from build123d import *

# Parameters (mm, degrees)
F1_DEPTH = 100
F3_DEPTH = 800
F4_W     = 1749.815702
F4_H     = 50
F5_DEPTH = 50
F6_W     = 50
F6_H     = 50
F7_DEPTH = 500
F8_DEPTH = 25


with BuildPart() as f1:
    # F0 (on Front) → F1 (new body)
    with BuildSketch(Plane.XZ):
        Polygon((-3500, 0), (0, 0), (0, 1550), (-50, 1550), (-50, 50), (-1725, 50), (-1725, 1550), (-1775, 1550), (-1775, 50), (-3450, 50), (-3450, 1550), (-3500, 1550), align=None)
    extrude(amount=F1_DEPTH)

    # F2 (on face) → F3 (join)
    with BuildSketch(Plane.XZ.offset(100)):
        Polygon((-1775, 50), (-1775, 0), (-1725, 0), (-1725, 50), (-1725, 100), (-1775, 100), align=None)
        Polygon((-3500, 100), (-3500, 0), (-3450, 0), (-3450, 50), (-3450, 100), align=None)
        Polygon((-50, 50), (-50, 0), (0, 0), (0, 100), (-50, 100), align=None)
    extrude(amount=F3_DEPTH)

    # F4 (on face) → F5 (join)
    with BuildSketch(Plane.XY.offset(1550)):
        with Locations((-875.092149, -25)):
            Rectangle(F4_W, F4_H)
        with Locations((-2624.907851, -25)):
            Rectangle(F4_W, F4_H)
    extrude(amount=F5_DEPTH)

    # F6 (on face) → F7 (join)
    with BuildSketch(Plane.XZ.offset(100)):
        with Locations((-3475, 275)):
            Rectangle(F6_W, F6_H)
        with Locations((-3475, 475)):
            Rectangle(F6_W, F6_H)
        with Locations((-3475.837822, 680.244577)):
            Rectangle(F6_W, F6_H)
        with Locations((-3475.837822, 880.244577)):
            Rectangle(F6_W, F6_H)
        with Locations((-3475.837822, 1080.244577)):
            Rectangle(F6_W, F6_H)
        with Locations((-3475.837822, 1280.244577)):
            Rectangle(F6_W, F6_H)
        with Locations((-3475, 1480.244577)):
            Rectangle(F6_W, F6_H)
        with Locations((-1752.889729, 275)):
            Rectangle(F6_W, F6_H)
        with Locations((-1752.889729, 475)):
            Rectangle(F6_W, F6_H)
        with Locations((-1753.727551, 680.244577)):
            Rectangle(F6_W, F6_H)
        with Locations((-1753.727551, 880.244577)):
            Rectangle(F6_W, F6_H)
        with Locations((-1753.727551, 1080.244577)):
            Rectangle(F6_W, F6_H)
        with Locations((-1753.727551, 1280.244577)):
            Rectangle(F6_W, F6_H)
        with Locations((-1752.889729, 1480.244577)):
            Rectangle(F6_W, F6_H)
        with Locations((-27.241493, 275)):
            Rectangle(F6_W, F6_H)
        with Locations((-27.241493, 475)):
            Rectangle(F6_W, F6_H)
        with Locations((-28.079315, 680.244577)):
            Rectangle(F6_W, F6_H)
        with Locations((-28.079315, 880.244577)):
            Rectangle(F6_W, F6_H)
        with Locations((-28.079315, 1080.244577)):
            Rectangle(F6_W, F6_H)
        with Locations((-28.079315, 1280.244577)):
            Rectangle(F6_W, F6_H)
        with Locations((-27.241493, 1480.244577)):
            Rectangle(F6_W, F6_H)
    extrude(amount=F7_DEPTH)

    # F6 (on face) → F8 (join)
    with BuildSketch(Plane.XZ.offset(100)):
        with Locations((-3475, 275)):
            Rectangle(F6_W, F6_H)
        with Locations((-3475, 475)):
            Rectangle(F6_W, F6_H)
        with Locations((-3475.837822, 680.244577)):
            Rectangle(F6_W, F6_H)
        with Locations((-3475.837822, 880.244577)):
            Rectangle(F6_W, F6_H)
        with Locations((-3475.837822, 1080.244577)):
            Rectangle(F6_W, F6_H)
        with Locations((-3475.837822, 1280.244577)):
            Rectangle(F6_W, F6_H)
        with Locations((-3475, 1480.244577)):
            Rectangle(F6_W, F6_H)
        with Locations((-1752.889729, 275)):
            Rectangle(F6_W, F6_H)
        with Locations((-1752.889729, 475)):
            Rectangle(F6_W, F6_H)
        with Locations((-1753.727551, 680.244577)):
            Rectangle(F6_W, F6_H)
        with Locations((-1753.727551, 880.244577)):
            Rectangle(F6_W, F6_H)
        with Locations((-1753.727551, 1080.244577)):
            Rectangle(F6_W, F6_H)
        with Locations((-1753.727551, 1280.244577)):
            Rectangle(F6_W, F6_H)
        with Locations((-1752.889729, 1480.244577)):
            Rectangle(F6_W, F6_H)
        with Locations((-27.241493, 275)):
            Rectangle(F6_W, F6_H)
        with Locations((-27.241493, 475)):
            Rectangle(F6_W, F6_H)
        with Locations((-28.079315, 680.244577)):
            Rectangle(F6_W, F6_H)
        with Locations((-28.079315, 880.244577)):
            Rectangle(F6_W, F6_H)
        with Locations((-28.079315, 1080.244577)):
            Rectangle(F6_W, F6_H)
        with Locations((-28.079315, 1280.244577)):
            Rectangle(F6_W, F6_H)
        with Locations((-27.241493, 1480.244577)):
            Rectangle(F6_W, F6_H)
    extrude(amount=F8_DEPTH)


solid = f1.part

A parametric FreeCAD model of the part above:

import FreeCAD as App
import Part
import Sketcher


def add_polygon(sketch, points):
    """Adds a closed chain of lines whose ends are joined by coincident constraints."""
    first, n = sketch.GeometryCount, len(points)
    for a, b in zip(points, points[1:] + points[:1]):
        sketch.addGeometry(Part.LineSegment(App.Vector(*a, 0), App.Vector(*b, 0)), False)
    for i in range(n):
        sketch.addConstraint(Sketcher.Constraint("Coincident", first + i, 2, first + (i + 1) % n, 1))

doc = App.newDocument("Part")
body = doc.addObject("PartDesign::Body", "Body")

# Sketch on XZ plane
sketch1 = doc.addObject("Sketcher::SketchObject", "Sketch")
body.addObject(sketch1)
sketch1.AttachmentSupport = (doc.XZ_Plane, [""])
sketch1.MapMode = "FlatFace"
add_polygon(sketch1, [(-3500, 0), (0, 0), (0, 1550), (-50, 1550), (-50, 50), (-1725, 50), (-1725, 1550), (-1775, 1550), (-1775, 50), (-3450, 50), (-3450, 1550), (-3500, 1550)])  # lines 0-11
sketch1.addConstraint([
    Sketcher.Constraint("Horizontal", 0),
    Sketcher.Constraint("Vertical", 1),
    Sketcher.Constraint("Horizontal", 2),
    Sketcher.Constraint("Vertical", 3),
    Sketcher.Constraint("Horizontal", 4),
    Sketcher.Constraint("Vertical", 5),
    Sketcher.Constraint("Horizontal", 6),
    Sketcher.Constraint("Vertical", 7),
    Sketcher.Constraint("Horizontal", 8),
    Sketcher.Constraint("Vertical", 9),
    Sketcher.Constraint("Horizontal", 10),
    Sketcher.Constraint("Vertical", 11),
    Sketcher.Constraint("Coincident", 0, 2, -1, 1),
    Sketcher.Constraint("Horizontal", 2, 2, 5, 2),
    Sketcher.Constraint("Horizontal", 4, 2, 7, 2),
    Sketcher.Constraint("Horizontal", 6, 2, 9, 2),
    Sketcher.Constraint("Equal", 2, 6),
    Sketcher.Constraint("Equal", 4, 8),
    Sketcher.Constraint("Equal", 6, 10),
    Sketcher.Constraint("DistanceX", 0, 1, 0, 2, 3500.0),
    Sketcher.Constraint("DistanceX", 2, 2, 2, 1, 50.0),
    Sketcher.Constraint("DistanceY", 1, 1, 1, 2, 1550.0),
    Sketcher.Constraint("DistanceY", 3, 2, 3, 1, 1500.0),
])
pad1 = doc.addObject("PartDesign::Pad", "Pad")
body.addObject(pad1)
pad1.Profile = sketch1
pad1.Length = 100

# Sketch on XZ plane
sketch2 = doc.addObject("Sketcher::SketchObject", "Sketch001")
body.addObject(sketch2)
sketch2.AttachmentSupport = (doc.XZ_Plane, [""])
sketch2.MapMode = "FlatFace"
sketch2.AttachmentOffset = App.Placement(App.Vector(0, 0, 100), App.Rotation())
add_polygon(sketch2, [(-1775, 0), (-1725, 0), (-1725, 100), (-1775, 100)])  # lines 0-3
add_polygon(sketch2, [(-3500, 100), (-3500, 0), (-3450, 0), (-3450, 100)])  # lines 4-7
add_polygon(sketch2, [(-50, 0), (0, 0), (0, 100), (-50, 100)])  # lines 8-11
sketch2.addConstraint([
    Sketcher.Constraint("Horizontal", 0),
    Sketcher.Constraint("Vertical", 1),
    Sketcher.Constraint("Horizontal", 2),
    Sketcher.Constraint("Vertical", 3),
    Sketcher.Constraint("Vertical", 4),
    Sketcher.Constraint("Horizontal", 5),
    Sketcher.Constraint("Vertical", 6),
    Sketcher.Constraint("Horizontal", 7),
    Sketcher.Constraint("Horizontal", 8),
    Sketcher.Constraint("Vertical", 9),
    Sketcher.Constraint("Horizontal", 10),
    Sketcher.Constraint("Vertical", 11),
    Sketcher.Constraint("Coincident", 8, 2, -1, 1),
    Sketcher.Constraint("PointOnObject", 0, 2, -1),
    Sketcher.Constraint("PointOnObject", 4, 2, -1),
    Sketcher.Constraint("Horizontal", 2, 2, 6, 2),
    Sketcher.Constraint("Horizontal", 7, 2, 9, 2),
    Sketcher.Constraint("Equal", 2, 5),
    Sketcher.Constraint("Equal", 7, 8),
    Sketcher.Constraint("DistanceX", 0, 1, 0, 2, 50.0),
    Sketcher.Constraint("DistanceY", 1, 1, 1, 2, 100.0),
    Sketcher.Constraint("DistanceX", 0, 2, -1, 1, 1725.0),
    Sketcher.Constraint("DistanceX", 4, 2, -1, 1, 3500.0),
])
pad2 = doc.addObject("PartDesign::Pad", "Pad001")
body.addObject(pad2)
pad2.Profile = sketch2
pad2.Length = 800

# Sketch on XY plane
sketch3 = doc.addObject("Sketcher::SketchObject", "Sketch002")
body.addObject(sketch3)
sketch3.AttachmentSupport = (doc.XY_Plane, [""])
sketch3.MapMode = "FlatFace"
sketch3.AttachmentOffset = App.Placement(App.Vector(0, 0, 1550), App.Rotation())
add_polygon(sketch3, [(0, -50), (0, 0), (-3500, 0), (-3500, -50)])  # lines 0-3
sketch3.addConstraint([
    Sketcher.Constraint("Vertical", 0),
    Sketcher.Constraint("Horizontal", 1),
    Sketcher.Constraint("Vertical", 2),
    Sketcher.Constraint("Horizontal", 3),
    Sketcher.Constraint("PointOnObject", 0, 2, -1),
    Sketcher.Constraint("DistanceY", 0, 1, 0, 2, 50.0),
    Sketcher.Constraint("DistanceX", 1, 2, -1, 1, 3499.815702),
    Sketcher.Constraint("DistanceX", 1, 2, 1, 1, 3499.631404),
])
pad3 = doc.addObject("PartDesign::Pad", "Pad002")
body.addObject(pad3)
pad3.Profile = sketch3
pad3.Length = 50

# Sketch on XZ plane
sketch4 = doc.addObject("Sketcher::SketchObject", "Sketch003")
body.addObject(sketch4)
sketch4.AttachmentSupport = (doc.XZ_Plane, [""])
sketch4.MapMode = "FlatFace"
sketch4.AttachmentOffset = App.Placement(App.Vector(0, 0, 100), App.Rotation())
add_polygon(sketch4, [(-3500, 300), (-3500, 250), (-3450, 250), (-3450, 300)])  # lines 0-3
add_polygon(sketch4, [(-3500, 500), (-3500, 450), (-3450, 450), (-3450, 500)])  # lines 4-7
add_polygon(sketch4, [(-3501, 705), (-3501, 655), (-3451, 655), (-3451, 705)])  # lines 8-11
add_polygon(sketch4, [(-3501, 905), (-3501, 855), (-3451, 855), (-3451, 905)])  # lines 12-15
add_polygon(sketch4, [(-3501, 1105), (-3501, 1055), (-3451, 1055), (-3451, 1105)])  # lines 16-19
add_polygon(sketch4, [(-3501, 1305), (-3501, 1255), (-3451, 1255), (-3451, 1305)])  # lines 20-23
add_polygon(sketch4, [(-3500, 1505), (-3500, 1455), (-3450, 1455), (-3450, 1505)])  # lines 24-27
add_polygon(sketch4, [(-1778, 300), (-1778, 250), (-1728, 250), (-1728, 300)])  # lines 28-31
add_polygon(sketch4, [(-1778, 500), (-1778, 450), (-1728, 450), (-1728, 500)])  # lines 32-35
add_polygon(sketch4, [(-1779, 705), (-1779, 655), (-1729, 655), (-1729, 705)])  # lines 36-39
add_polygon(sketch4, [(-1779, 905), (-1779, 855), (-1729, 855), (-1729, 905)])  # lines 40-43
add_polygon(sketch4, [(-1779, 1105), (-1779, 1055), (-1729, 1055), (-1729, 1105)])  # lines 44-47
add_polygon(sketch4, [(-1779, 1305), (-1779, 1255), (-1729, 1255), (-1729, 1305)])  # lines 48-51
add_polygon(sketch4, [(-1778, 1505), (-1778, 1455), (-1728, 1455), (-1728, 1505)])  # lines 52-55
add_polygon(sketch4, [(-52, 300), (-52, 250), (-2, 250), (-2, 300)])  # lines 56-59
add_polygon(sketch4, [(-52, 500), (-52, 450), (-2, 450), (-2, 500)])  # lines 60-63
add_polygon(sketch4, [(-53, 705), (-53, 655), (-3, 655), (-3, 705)])  # lines 64-67
add_polygon(sketch4, [(-53, 905), (-53, 855), (-3, 855), (-3, 905)])  # lines 68-71
add_polygon(sketch4, [(-53, 1105), (-53, 1055), (-3, 1055), (-3, 1105)])  # lines 72-75
add_polygon(sketch4, [(-53, 1305), (-53, 1255), (-3, 1255), (-3, 1305)])  # lines 76-79
add_polygon(sketch4, [(-52, 1505), (-52, 1455), (-2, 1455), (-2, 1505)])  # lines 80-83
sketch4.addConstraint([
    Sketcher.Constraint("Vertical", 0),
    Sketcher.Constraint("Horizontal", 1),
    Sketcher.Constraint("Vertical", 2),
    Sketcher.Constraint("Horizontal", 3),
    Sketcher.Constraint("Vertical", 4),
    Sketcher.Constraint("Horizontal", 5),
    Sketcher.Constraint("Vertical", 6),
    Sketcher.Constraint("Horizontal", 7),
    Sketcher.Constraint("Vertical", 8),
    Sketcher.Constraint("Horizontal", 9),
    Sketcher.Constraint("Vertical", 10),
    Sketcher.Constraint("Horizontal", 11),
    Sketcher.Constraint("Vertical", 12),
    Sketcher.Constraint("Horizontal", 13),
    Sketcher.Constraint("Vertical", 14),
    Sketcher.Constraint("Horizontal", 15),
    Sketcher.Constraint("Vertical", 16),
    Sketcher.Constraint("Horizontal", 17),
    Sketcher.Constraint("Vertical", 18),
    Sketcher.Constraint("Horizontal", 19),
    Sketcher.Constraint("Vertical", 20),
    Sketcher.Constraint("Horizontal", 21),
    Sketcher.Constraint("Vertical", 22),
    Sketcher.Constraint("Horizontal", 23),
    Sketcher.Constraint("Vertical", 24),
    Sketcher.Constraint("Horizontal", 25),
    Sketcher.Constraint("Vertical", 26),
    Sketcher.Constraint("Horizontal", 27),
    Sketcher.Constraint("Vertical", 28),
    Sketcher.Constraint("Horizontal", 29),
    Sketcher.Constraint("Vertical", 30),
    Sketcher.Constraint("Horizontal", 31),
    Sketcher.Constraint("Vertical", 32),
    Sketcher.Constraint("Horizontal", 33),
    Sketcher.Constraint("Vertical", 34),
    Sketcher.Constraint("Horizontal", 35),
    Sketcher.Constraint("Vertical", 36),
    Sketcher.Constraint("Horizontal", 37),
    Sketcher.Constraint("Vertical", 38),
    Sketcher.Constraint("Horizontal", 39),
    Sketcher.Constraint("Vertical", 40),
    Sketcher.Constraint("Horizontal", 41),
    Sketcher.Constraint("Vertical", 42),
    Sketcher.Constraint("Horizontal", 43),
    Sketcher.Constraint("Vertical", 44),
    Sketcher.Constraint("Horizontal", 45),
    Sketcher.Constraint("Vertical", 46),
    Sketcher.Constraint("Horizontal", 47),
    Sketcher.Constraint("Vertical", 48),
    Sketcher.Constraint("Horizontal", 49),
    Sketcher.Constraint("Vertical", 50),
    Sketcher.Constraint("Horizontal", 51),
    Sketcher.Constraint("Vertical", 52),
    Sketcher.Constraint("Horizontal", 53),
    Sketcher.Constraint("Vertical", 54),
    Sketcher.Constraint("Horizontal", 55),
    Sketcher.Constraint("Vertical", 56),
    Sketcher.Constraint("Horizontal", 57),
    Sketcher.Constraint("Vertical", 58),
    Sketcher.Constraint("Horizontal", 59),
    Sketcher.Constraint("Vertical", 60),
    Sketcher.Constraint("Horizontal", 61),
    Sketcher.Constraint("Vertical", 62),
    Sketcher.Constraint("Horizontal", 63),
    Sketcher.Constraint("Vertical", 64),
    Sketcher.Constraint("Horizontal", 65),
    Sketcher.Constraint("Vertical", 66),
    Sketcher.Constraint("Horizontal", 67),
    Sketcher.Constraint("Vertical", 68),
    Sketcher.Constraint("Horizontal", 69),
    Sketcher.Constraint("Vertical", 70),
    Sketcher.Constraint("Horizontal", 71),
    Sketcher.Constraint("Vertical", 72),
    Sketcher.Constraint("Horizontal", 73),
    Sketcher.Constraint("Vertical", 74),
    Sketcher.Constraint("Horizontal", 75),
    Sketcher.Constraint("Vertical", 76),
    Sketcher.Constraint("Horizontal", 77),
    Sketcher.Constraint("Vertical", 78),
    Sketcher.Constraint("Horizontal", 79),
    Sketcher.Constraint("Vertical", 80),
    Sketcher.Constraint("Horizontal", 81),
    Sketcher.Constraint("Vertical", 82),
    Sketcher.Constraint("Horizontal", 83),
    Sketcher.Constraint("Horizontal", 1, 2, 28, 2),
    Sketcher.Constraint("Horizontal", 3, 2, 30, 2),
    Sketcher.Constraint("Horizontal", 5, 2, 32, 2),
    Sketcher.Constraint("Horizontal", 7, 2, 34, 2),
    Sketcher.Constraint("Horizontal", 9, 2, 36, 2),
    Sketcher.Constraint("Horizontal", 11, 2, 38, 2),
    Sketcher.Constraint("Horizontal", 13, 2, 40, 2),
    Sketcher.Constraint("Horizontal", 15, 2, 42, 2),
    Sketcher.Constraint("Horizontal", 17, 2, 44, 2),
    Sketcher.Constraint("Horizontal", 19, 2, 46, 2),
    Sketcher.Constraint("Horizontal", 21, 2, 48, 2),
    Sketcher.Constraint("Horizontal", 23, 2, 50, 2),
    Sketcher.Constraint("Horizontal", 25, 2, 52, 2),
    Sketcher.Constraint("Horizontal", 27, 2, 54, 2),
    Sketcher.Constraint("Horizontal", 29, 2, 56, 2),
    Sketcher.Constraint("Horizontal", 31, 2, 58, 2),
    Sketcher.Constraint("Horizontal", 33, 2, 60, 2),
    Sketcher.Constraint("Horizontal", 35, 2, 62, 2),
    Sketcher.Constraint("Horizontal", 37, 2, 64, 2),
    Sketcher.Constraint("Horizontal", 39, 2, 66, 2),
    Sketcher.Constraint("Horizontal", 41, 2, 68, 2),
    Sketcher.Constraint("Horizontal", 43, 2, 70, 2),
    Sketcher.Constraint("Horizontal", 45, 2, 72, 2),
    Sketcher.Constraint("Horizontal", 47, 2, 74, 2),
    Sketcher.Constraint("Horizontal", 49, 2, 76, 2),
    Sketcher.Constraint("Horizontal", 51, 2, 78, 2),
    Sketcher.Constraint("Horizontal", 53, 2, 80, 2),
    Sketcher.Constraint("Horizontal", 55, 2, 82, 2),
    Sketcher.Constraint("Vertical", 3, 2, 4, 2),
    Sketcher.Constraint("Vertical", 2, 2, 5, 2),
    Sketcher.Constraint("Vertical", 11, 2, 12, 2),
    Sketcher.Constraint("Vertical", 10, 2, 13, 2),
    Sketcher.Constraint("Vertical", 15, 2, 16, 2),
    Sketcher.Constraint("Vertical", 14, 2, 17, 2),
    Sketcher.Constraint("Vertical", 19, 2, 20, 2),
    Sketcher.Constraint("Vertical", 18, 2, 21, 2),
    Sketcher.Constraint("Vertical", 7, 2, 24, 2),
    Sketcher.Constraint("Vertical", 6, 2, 25, 2),
    Sketcher.Constraint("Vertical", 31, 2, 32, 2),
    Sketcher.Constraint("Vertical", 30, 2, 33, 2),
    Sketcher.Constraint("Vertical", 39, 2, 40, 2),
    Sketcher.Constraint("Vertical", 38, 2, 41, 2),
    Sketcher.Constraint("Vertical", 43, 2, 44, 2),
    Sketcher.Constraint("Vertical", 42, 2, 45, 2),
    Sketcher.Constraint("Vertical", 47, 2, 48, 2),
    Sketcher.Constraint("Vertical", 46, 2, 49, 2),
    Sketcher.Constraint("Vertical", 35, 2, 52, 2),
    Sketcher.Constraint("Vertical", 34, 2, 53, 2),
    Sketcher.Constraint("Vertical", 59, 2, 60, 2),
    Sketcher.Constraint("Vertical", 58, 2, 61, 2),
    Sketcher.Constraint("Vertical", 67, 2, 68, 2),
    Sketcher.Constraint("Vertical", 66, 2, 69, 2),
    Sketcher.Constraint("Vertical", 71, 2, 72, 2),
    Sketcher.Constraint("Vertical", 70, 2, 73, 2),
    Sketcher.Constraint("Vertical", 75, 2, 76, 2),
    Sketcher.Constraint("Vertical", 74, 2, 77, 2),
    Sketcher.Constraint("Vertical", 63, 2, 80, 2),
    Sketcher.Constraint("Vertical", 62, 2, 81, 2),
    Sketcher.Constraint("Equal", 7, 9),
    Sketcher.Constraint("Equal", 27, 29),
    Sketcher.Constraint("Equal", 35, 37),
    Sketcher.Constraint("Equal", 55, 57),
    Sketcher.Constraint("Equal", 63, 65),
    Sketcher.Constraint("Equal", 83, 0),
    Sketcher.Constraint("Equal", 2, 4),
    Sketcher.Constraint("Equal", 6, 8),
    Sketcher.Constraint("Equal", 10, 12),
    Sketcher.Constraint("Equal", 14, 16),
    Sketcher.Constraint("Equal", 18, 20),
    Sketcher.Constraint("Equal", 22, 24),
    Sketcher.Constraint("DistanceX", 1, 1, 1, 2, 50.0),
    Sketcher.Constraint("DistanceX", 0, 2, -1, 1, 3500.0),
    Sketcher.Constraint("DistanceY", -1, 1, 0, 2, 250.0),
    Sketcher.Constraint("DistanceY", -1, 1, 4, 2, 450.0),
    Sketcher.Constraint("DistanceX", 8, 2, -1, 1, 3500.837822),
    Sketcher.Constraint("DistanceX", 28, 2, -1, 1, 1777.889729),
    Sketcher.Constraint("DistanceX", 36, 2, -1, 1, 1778.727551),
    Sketcher.Constraint("DistanceY", -1, 1, 8, 2, 655.244577),
    Sketcher.Constraint("DistanceY", -1, 1, 12, 2, 855.244577),
    Sketcher.Constraint("DistanceY", -1, 1, 16, 2, 1055.244577),
    Sketcher.Constraint("DistanceY", -1, 1, 20, 2, 1255.244577),
    Sketcher.Constraint("DistanceY", -1, 1, 24, 2, 1455.244577),
    Sketcher.Constraint("DistanceX", 56, 2, -1, 1, 52.241493),
    Sketcher.Constraint("DistanceX", 64, 2, -1, 1, 53.079315),
])
pad4 = doc.addObject("PartDesign::Pad", "Pad003")
body.addObject(pad4)
pad4.Profile = sketch4
pad4.Length = 500

# Sketch on XZ plane
sketch5 = doc.addObject("Sketcher::SketchObject", "Sketch004")
body.addObject(sketch5)
sketch5.AttachmentSupport = (doc.XZ_Plane, [""])
sketch5.MapMode = "FlatFace"
sketch5.AttachmentOffset = App.Placement(App.Vector(0, 0, 100), App.Rotation())
add_polygon(sketch5, [(-3500, 300), (-3500, 250), (-3450, 250), (-3450, 300)])  # lines 0-3
add_polygon(sketch5, [(-3500, 500), (-3500, 450), (-3450, 450), (-3450, 500)])  # lines 4-7
add_polygon(sketch5, [(-3501, 705), (-3501, 655), (-3451, 655), (-3451, 705)])  # lines 8-11
add_polygon(sketch5, [(-3501, 905), (-3501, 855), (-3451, 855), (-3451, 905)])  # lines 12-15
add_polygon(sketch5, [(-3501, 1105), (-3501, 1055), (-3451, 1055), (-3451, 1105)])  # lines 16-19
add_polygon(sketch5, [(-3501, 1305), (-3501, 1255), (-3451, 1255), (-3451, 1305)])  # lines 20-23
add_polygon(sketch5, [(-3500, 1505), (-3500, 1455), (-3450, 1455), (-3450, 1505)])  # lines 24-27
add_polygon(sketch5, [(-1778, 300), (-1778, 250), (-1728, 250), (-1728, 300)])  # lines 28-31
add_polygon(sketch5, [(-1778, 500), (-1778, 450), (-1728, 450), (-1728, 500)])  # lines 32-35
add_polygon(sketch5, [(-1779, 705), (-1779, 655), (-1729, 655), (-1729, 705)])  # lines 36-39
add_polygon(sketch5, [(-1779, 905), (-1779, 855), (-1729, 855), (-1729, 905)])  # lines 40-43
add_polygon(sketch5, [(-1779, 1105), (-1779, 1055), (-1729, 1055), (-1729, 1105)])  # lines 44-47
add_polygon(sketch5, [(-1779, 1305), (-1779, 1255), (-1729, 1255), (-1729, 1305)])  # lines 48-51
add_polygon(sketch5, [(-1778, 1505), (-1778, 1455), (-1728, 1455), (-1728, 1505)])  # lines 52-55
add_polygon(sketch5, [(-52, 300), (-52, 250), (-2, 250), (-2, 300)])  # lines 56-59
add_polygon(sketch5, [(-52, 500), (-52, 450), (-2, 450), (-2, 500)])  # lines 60-63
add_polygon(sketch5, [(-53, 705), (-53, 655), (-3, 655), (-3, 705)])  # lines 64-67
add_polygon(sketch5, [(-53, 905), (-53, 855), (-3, 855), (-3, 905)])  # lines 68-71
add_polygon(sketch5, [(-53, 1105), (-53, 1055), (-3, 1055), (-3, 1105)])  # lines 72-75
add_polygon(sketch5, [(-53, 1305), (-53, 1255), (-3, 1255), (-3, 1305)])  # lines 76-79
add_polygon(sketch5, [(-52, 1505), (-52, 1455), (-2, 1455), (-2, 1505)])  # lines 80-83
sketch5.addConstraint([
    Sketcher.Constraint("Vertical", 0),
    Sketcher.Constraint("Horizontal", 1),
    Sketcher.Constraint("Vertical", 2),
    Sketcher.Constraint("Horizontal", 3),
    Sketcher.Constraint("Vertical", 4),
    Sketcher.Constraint("Horizontal", 5),
    Sketcher.Constraint("Vertical", 6),
    Sketcher.Constraint("Horizontal", 7),
    Sketcher.Constraint("Vertical", 8),
    Sketcher.Constraint("Horizontal", 9),
    Sketcher.Constraint("Vertical", 10),
    Sketcher.Constraint("Horizontal", 11),
    Sketcher.Constraint("Vertical", 12),
    Sketcher.Constraint("Horizontal", 13),
    Sketcher.Constraint("Vertical", 14),
    Sketcher.Constraint("Horizontal", 15),
    Sketcher.Constraint("Vertical", 16),
    Sketcher.Constraint("Horizontal", 17),
    Sketcher.Constraint("Vertical", 18),
    Sketcher.Constraint("Horizontal", 19),
    Sketcher.Constraint("Vertical", 20),
    Sketcher.Constraint("Horizontal", 21),
    Sketcher.Constraint("Vertical", 22),
    Sketcher.Constraint("Horizontal", 23),
    Sketcher.Constraint("Vertical", 24),
    Sketcher.Constraint("Horizontal", 25),
    Sketcher.Constraint("Vertical", 26),
    Sketcher.Constraint("Horizontal", 27),
    Sketcher.Constraint("Vertical", 28),
    Sketcher.Constraint("Horizontal", 29),
    Sketcher.Constraint("Vertical", 30),
    Sketcher.Constraint("Horizontal", 31),
    Sketcher.Constraint("Vertical", 32),
    Sketcher.Constraint("Horizontal", 33),
    Sketcher.Constraint("Vertical", 34),
    Sketcher.Constraint("Horizontal", 35),
    Sketcher.Constraint("Vertical", 36),
    Sketcher.Constraint("Horizontal", 37),
    Sketcher.Constraint("Vertical", 38),
    Sketcher.Constraint("Horizontal", 39),
    Sketcher.Constraint("Vertical", 40),
    Sketcher.Constraint("Horizontal", 41),
    Sketcher.Constraint("Vertical", 42),
    Sketcher.Constraint("Horizontal", 43),
    Sketcher.Constraint("Vertical", 44),
    Sketcher.Constraint("Horizontal", 45),
    Sketcher.Constraint("Vertical", 46),
    Sketcher.Constraint("Horizontal", 47),
    Sketcher.Constraint("Vertical", 48),
    Sketcher.Constraint("Horizontal", 49),
    Sketcher.Constraint("Vertical", 50),
    Sketcher.Constraint("Horizontal", 51),
    Sketcher.Constraint("Vertical", 52),
    Sketcher.Constraint("Horizontal", 53),
    Sketcher.Constraint("Vertical", 54),
    Sketcher.Constraint("Horizontal", 55),
    Sketcher.Constraint("Vertical", 56),
    Sketcher.Constraint("Horizontal", 57),
    Sketcher.Constraint("Vertical", 58),
    Sketcher.Constraint("Horizontal", 59),
    Sketcher.Constraint("Vertical", 60),
    Sketcher.Constraint("Horizontal", 61),
    Sketcher.Constraint("Vertical", 62),
    Sketcher.Constraint("Horizontal", 63),
    Sketcher.Constraint("Vertical", 64),
    Sketcher.Constraint("Horizontal", 65),
    Sketcher.Constraint("Vertical", 66),
    Sketcher.Constraint("Horizontal", 67),
    Sketcher.Constraint("Vertical", 68),
    Sketcher.Constraint("Horizontal", 69),
    Sketcher.Constraint("Vertical", 70),
    Sketcher.Constraint("Horizontal", 71),
    Sketcher.Constraint("Vertical", 72),
    Sketcher.Constraint("Horizontal", 73),
    Sketcher.Constraint("Vertical", 74),
    Sketcher.Constraint("Horizontal", 75),
    Sketcher.Constraint("Vertical", 76),
    Sketcher.Constraint("Horizontal", 77),
    Sketcher.Constraint("Vertical", 78),
    Sketcher.Constraint("Horizontal", 79),
    Sketcher.Constraint("Vertical", 80),
    Sketcher.Constraint("Horizontal", 81),
    Sketcher.Constraint("Vertical", 82),
    Sketcher.Constraint("Horizontal", 83),
    Sketcher.Constraint("Horizontal", 1, 2, 28, 2),
    Sketcher.Constraint("Horizontal", 3, 2, 30, 2),
    Sketcher.Constraint("Horizontal", 5, 2, 32, 2),
    Sketcher.Constraint("Horizontal", 7, 2, 34, 2),
    Sketcher.Constraint("Horizontal", 9, 2, 36, 2),
    Sketcher.Constraint("Horizontal", 11, 2, 38, 2),
    Sketcher.Constraint("Horizontal", 13, 2, 40, 2),
    Sketcher.Constraint("Horizontal", 15, 2, 42, 2),
    Sketcher.Constraint("Horizontal", 17, 2, 44, 2),
    Sketcher.Constraint("Horizontal", 19, 2, 46, 2),
    Sketcher.Constraint("Horizontal", 21, 2, 48, 2),
    Sketcher.Constraint("Horizontal", 23, 2, 50, 2),
    Sketcher.Constraint("Horizontal", 25, 2, 52, 2),
    Sketcher.Constraint("Horizontal", 27, 2, 54, 2),
    Sketcher.Constraint("Horizontal", 29, 2, 56, 2),
    Sketcher.Constraint("Horizontal", 31, 2, 58, 2),
    Sketcher.Constraint("Horizontal", 33, 2, 60, 2),
    Sketcher.Constraint("Horizontal", 35, 2, 62, 2),
    Sketcher.Constraint("Horizontal", 37, 2, 64, 2),
    Sketcher.Constraint("Horizontal", 39, 2, 66, 2),
    Sketcher.Constraint("Horizontal", 41, 2, 68, 2),
    Sketcher.Constraint("Horizontal", 43, 2, 70, 2),
    Sketcher.Constraint("Horizontal", 45, 2, 72, 2),
    Sketcher.Constraint("Horizontal", 47, 2, 74, 2),
    Sketcher.Constraint("Horizontal", 49, 2, 76, 2),
    Sketcher.Constraint("Horizontal", 51, 2, 78, 2),
    Sketcher.Constraint("Horizontal", 53, 2, 80, 2),
    Sketcher.Constraint("Horizontal", 55, 2, 82, 2),
    Sketcher.Constraint("Vertical", 3, 2, 4, 2),
    Sketcher.Constraint("Vertical", 2, 2, 5, 2),
    Sketcher.Constraint("Vertical", 11, 2, 12, 2),
    Sketcher.Constraint("Vertical", 10, 2, 13, 2),
    Sketcher.Constraint("Vertical", 15, 2, 16, 2),
    Sketcher.Constraint("Vertical", 14, 2, 17, 2),
    Sketcher.Constraint("Vertical", 19, 2, 20, 2),
    Sketcher.Constraint("Vertical", 18, 2, 21, 2),
    Sketcher.Constraint("Vertical", 7, 2, 24, 2),
    Sketcher.Constraint("Vertical", 6, 2, 25, 2),
    Sketcher.Constraint("Vertical", 31, 2, 32, 2),
    Sketcher.Constraint("Vertical", 30, 2, 33, 2),
    Sketcher.Constraint("Vertical", 39, 2, 40, 2),
    Sketcher.Constraint("Vertical", 38, 2, 41, 2),
    Sketcher.Constraint("Vertical", 43, 2, 44, 2),
    Sketcher.Constraint("Vertical", 42, 2, 45, 2),
    Sketcher.Constraint("Vertical", 47, 2, 48, 2),
    Sketcher.Constraint("Vertical", 46, 2, 49, 2),
    Sketcher.Constraint("Vertical", 35, 2, 52, 2),
    Sketcher.Constraint("Vertical", 34, 2, 53, 2),
    Sketcher.Constraint("Vertical", 59, 2, 60, 2),
    Sketcher.Constraint("Vertical", 58, 2, 61, 2),
    Sketcher.Constraint("Vertical", 67, 2, 68, 2),
    Sketcher.Constraint("Vertical", 66, 2, 69, 2),
    Sketcher.Constraint("Vertical", 71, 2, 72, 2),
    Sketcher.Constraint("Vertical", 70, 2, 73, 2),
    Sketcher.Constraint("Vertical", 75, 2, 76, 2),
    Sketcher.Constraint("Vertical", 74, 2, 77, 2),
    Sketcher.Constraint("Vertical", 63, 2, 80, 2),
    Sketcher.Constraint("Vertical", 62, 2, 81, 2),
    Sketcher.Constraint("Equal", 7, 9),
    Sketcher.Constraint("Equal", 27, 29),
    Sketcher.Constraint("Equal", 35, 37),
    Sketcher.Constraint("Equal", 55, 57),
    Sketcher.Constraint("Equal", 63, 65),
    Sketcher.Constraint("Equal", 83, 0),
    Sketcher.Constraint("Equal", 2, 4),
    Sketcher.Constraint("Equal", 6, 8),
    Sketcher.Constraint("Equal", 10, 12),
    Sketcher.Constraint("Equal", 14, 16),
    Sketcher.Constraint("Equal", 18, 20),
    Sketcher.Constraint("Equal", 22, 24),
    Sketcher.Constraint("DistanceX", 1, 1, 1, 2, 50.0),
    Sketcher.Constraint("DistanceX", 0, 2, -1, 1, 3500.0),
    Sketcher.Constraint("DistanceY", -1, 1, 0, 2, 250.0),
    Sketcher.Constraint("DistanceY", -1, 1, 4, 2, 450.0),
    Sketcher.Constraint("DistanceX", 8, 2, -1, 1, 3500.837822),
    Sketcher.Constraint("DistanceX", 28, 2, -1, 1, 1777.889729),
    Sketcher.Constraint("DistanceX", 36, 2, -1, 1, 1778.727551),
    Sketcher.Constraint("DistanceY", -1, 1, 8, 2, 655.244577),
    Sketcher.Constraint("DistanceY", -1, 1, 12, 2, 855.244577),
    Sketcher.Constraint("DistanceY", -1, 1, 16, 2, 1055.244577),
    Sketcher.Constraint("DistanceY", -1, 1, 20, 2, 1255.244577),
    Sketcher.Constraint("DistanceY", -1, 1, 24, 2, 1455.244577),
    Sketcher.Constraint("DistanceX", 56, 2, -1, 1, 52.241493),
    Sketcher.Constraint("DistanceX", 64, 2, -1, 1, 53.079315),
])
pad5 = doc.addObject("PartDesign::Pad", "Pad004")
body.addObject(pad5)
pad5.Profile = sketch5
pad5.Length = 25

doc.recompute()
